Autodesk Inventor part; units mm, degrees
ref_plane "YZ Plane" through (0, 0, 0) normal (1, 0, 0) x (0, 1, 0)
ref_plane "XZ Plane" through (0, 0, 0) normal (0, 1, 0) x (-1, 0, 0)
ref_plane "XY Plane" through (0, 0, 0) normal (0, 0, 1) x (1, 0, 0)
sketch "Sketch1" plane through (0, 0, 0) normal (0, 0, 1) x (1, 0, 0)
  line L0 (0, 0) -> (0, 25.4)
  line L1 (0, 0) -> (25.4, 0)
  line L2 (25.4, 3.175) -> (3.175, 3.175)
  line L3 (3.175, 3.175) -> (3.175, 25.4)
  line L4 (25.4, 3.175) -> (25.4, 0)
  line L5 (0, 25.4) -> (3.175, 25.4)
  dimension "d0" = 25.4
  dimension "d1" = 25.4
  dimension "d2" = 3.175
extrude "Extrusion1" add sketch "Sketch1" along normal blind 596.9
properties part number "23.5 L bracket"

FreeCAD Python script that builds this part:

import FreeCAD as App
import Part
import Sketcher
from FreeCAD import Vector
Q = App.Units.Quantity

doc = App.newDocument("Part")
body = doc.addObject("PartDesign::Body", "Body")

sketch1 = body.newObject("Sketcher::SketchObject", "Sketch")
sketch1.AttachmentSupport = (doc.getObject("XY_Plane"), [""])
sketch1.MapMode = "FlatFace"
sketch1.addGeometry(Part.LineSegment(Vector(0, 25.4, 0), Vector(0, 0, 0)), False)
sketch1.addGeometry(Part.LineSegment(Vector(0, 0, 0), Vector(25.4, 0, 0)), False)
sketch1.addGeometry(Part.LineSegment(Vector(25.4, 0, 0), Vector(25.4, 3.175, 0)), False)
sketch1.addGeometry(Part.LineSegment(Vector(25.4, 3.175, 0), Vector(3.175, 3.175, 0)), False)
sketch1.addGeometry(Part.LineSegment(Vector(3.175, 3.175, 0), Vector(3.175, 25.4, 0)), False)
sketch1.addGeometry(Part.LineSegment(Vector(3.175, 25.4, 0), Vector(0, 25.4, 0)), False)
sketch1.addConstraint(Sketcher.Constraint("Coincident", 0, 2, 1, 1))
sketch1.addConstraint(Sketcher.Constraint("Coincident", 1, 2, 2, 1))
sketch1.addConstraint(Sketcher.Constraint("Coincident", 2, 2, 3, 1))
sketch1.addConstraint(Sketcher.Constraint("Coincident", 3, 2, 4, 1))
sketch1.addConstraint(Sketcher.Constraint("Coincident", 4, 2, 5, 1))
sketch1.addConstraint(Sketcher.Constraint("Coincident", 5, 2, 0, 1))
sketch1.addConstraint(Sketcher.Constraint("Vertical", 0))
sketch1.addConstraint(Sketcher.Constraint("Horizontal", 1))
sketch1.addConstraint(Sketcher.Constraint("Vertical", 2))
sketch1.addConstraint(Sketcher.Constraint("Horizontal", 3))
sketch1.addConstraint(Sketcher.Constraint("Vertical", 4))
sketch1.addConstraint(Sketcher.Constraint("Horizontal", 5))
sketch1.addConstraint(Sketcher.Constraint("Coincident", 0, 2, -1, 1))
sketch1.addConstraint(Sketcher.Constraint("Equal", 1, 0))
sketch1.addConstraint(Sketcher.Constraint("Equal", 5, 2))
sketch1.addConstraint(Sketcher.Constraint("DistanceX", 1, 1, 1, 2, Q("1 in")))
sketch1.addConstraint(Sketcher.Constraint("DistanceX", 5, 2, 5, 1, Q("0.125 in")))
pad1 = body.newObject("PartDesign::Pad", "Pad")
pad1.Profile = sketch1
pad1.Length = Q("23.5 in")

doc.recompute()
